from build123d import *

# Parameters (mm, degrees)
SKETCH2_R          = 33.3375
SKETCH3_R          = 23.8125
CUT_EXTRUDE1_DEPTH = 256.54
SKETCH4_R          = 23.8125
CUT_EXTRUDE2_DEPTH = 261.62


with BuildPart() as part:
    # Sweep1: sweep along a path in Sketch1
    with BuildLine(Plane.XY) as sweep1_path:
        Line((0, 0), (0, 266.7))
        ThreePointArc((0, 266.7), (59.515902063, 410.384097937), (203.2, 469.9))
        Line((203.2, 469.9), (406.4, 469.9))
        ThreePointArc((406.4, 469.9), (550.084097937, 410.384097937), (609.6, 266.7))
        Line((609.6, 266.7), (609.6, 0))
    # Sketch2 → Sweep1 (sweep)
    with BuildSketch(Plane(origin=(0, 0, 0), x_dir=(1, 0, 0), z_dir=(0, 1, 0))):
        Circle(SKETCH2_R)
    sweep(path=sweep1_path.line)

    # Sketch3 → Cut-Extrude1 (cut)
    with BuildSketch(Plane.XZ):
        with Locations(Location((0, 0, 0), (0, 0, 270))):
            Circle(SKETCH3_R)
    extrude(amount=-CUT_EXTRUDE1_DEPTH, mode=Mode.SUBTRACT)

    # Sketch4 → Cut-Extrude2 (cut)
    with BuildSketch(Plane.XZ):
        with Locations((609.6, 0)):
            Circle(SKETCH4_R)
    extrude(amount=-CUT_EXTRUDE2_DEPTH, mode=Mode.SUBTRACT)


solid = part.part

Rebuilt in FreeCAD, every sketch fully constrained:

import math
import FreeCAD as App
import Part
import Sketcher
Q = App.Units.Quantity

doc = App.newDocument("Part")
body = doc.addObject("PartDesign::Body", "Body")

# Sketch on XZ plane
sketch1 = doc.addObject("Sketcher::SketchObject", "Sketch")
body.addObject(sketch1)
sketch1.AttachmentSupport = (doc.XZ_Plane, [""])
sketch1.MapMode = "FlatFace"
sketch1.addGeometry(Part.Circle(App.Vector(0, 0, 0), App.Vector(0, 0, 1), 33.3375), False)
sketch1.addConstraint(Sketcher.Constraint("Coincident", 0, 3, -1, 1))
sketch1.addConstraint(Sketcher.Constraint("Diameter", 0, Q("2.625 in")))

# Sketch on XY plane
sketch2 = doc.addObject("Sketcher::SketchObject", "Sketch001")
body.addObject(sketch2)
sketch2.AttachmentSupport = (doc.XY_Plane, [""])
sketch2.MapMode = "FlatFace"
sketch2.addGeometry(Part.LineSegment(App.Vector(0, 0, 0), App.Vector(0, 266.7, 0)), False)
sketch2.addGeometry(Part.ArcOfCircle(Part.Circle(App.Vector(203.2, 266.7, 0), App.Vector(0, 0, 1), 203.2), math.radians(90), math.radians(180)), False)
sketch2.addGeometry(Part.LineSegment(App.Vector(203.2, 469.9, 0), App.Vector(406.4, 469.9, 0)), False)
sketch2.addGeometry(Part.ArcOfCircle(Part.Circle(App.Vector(406.4, 266.7, 0), App.Vector(0, 0, 1), 203.2), math.radians(0), math.radians(90)), False)
sketch2.addGeometry(Part.LineSegment(App.Vector(609.6, 266.7, 0), App.Vector(609.6, 0, 0)), False)
sketch2.addConstraint(Sketcher.Constraint("Tangent", 0, 2, 1, 2))
sketch2.addConstraint(Sketcher.Constraint("Tangent", 1, 1, 2, 1))
sketch2.addConstraint(Sketcher.Constraint("Tangent", 2, 2, 3, 2))
sketch2.addConstraint(Sketcher.Constraint("Tangent", 3, 1, 4, 1))
sketch2.addConstraint(Sketcher.Constraint("Vertical", 0))
sketch2.addConstraint(Sketcher.Constraint("Horizontal", 2))
sketch2.addConstraint(Sketcher.Constraint("Vertical", 4))
sketch2.addConstraint(Sketcher.Constraint("Coincident", 0, 1, -1, 1))
sketch2.addConstraint(Sketcher.Constraint("Equal", 1, 3))
sketch2.addConstraint(Sketcher.Constraint("PointOnObject", 4, 2, -1))
sketch2.addConstraint(Sketcher.Constraint("Radius", 1, Q("8 in")))
sketch2.addConstraint(Sketcher.Constraint("DistanceX", 2, 1, 2, 2, Q("8 in")))
sketch2.addConstraint(Sketcher.Constraint("DistanceY", 0, 1, 0, 2, Q("10.5 in")))
doc.recompute()

additivepipe = doc.addObject("PartDesign::AdditivePipe", "AdditivePipe")
body.addObject(additivepipe)
additivepipe.Profile = sketch1
additivepipe.Spine = (sketch2, ["Edge1", "Edge2", "Edge3", "Edge4", "Edge5"])

# Sketch on XZ plane
sketch3 = doc.addObject("Sketcher::SketchObject", "Sketch002")
body.addObject(sketch3)
sketch3.AttachmentSupport = (doc.XZ_Plane, [""])
sketch3.MapMode = "FlatFace"
sketch3.addGeometry(Part.Circle(App.Vector(0, 0, 0), App.Vector(0, 0, 1), 23.8125), False)
sketch3.addConstraint(Sketcher.Constraint("Coincident", 0, 3, -1, 1))
sketch3.addConstraint(Sketcher.Constraint("Diameter", 0, Q("1.875 in")))
pocket1 = doc.addObject("PartDesign::Pocket", "Pocket")
body.addObject(pocket1)
pocket1.Profile = sketch3
pocket1.Length = Q("10.1 in")

# Sketch on XZ plane
sketch4 = doc.addObject("Sketcher::SketchObject", "Sketch003")
body.addObject(sketch4)
sketch4.AttachmentSupport = (doc.XZ_Plane, [""])
sketch4.MapMode = "FlatFace"
sketch4.addGeometry(Part.Circle(App.Vector(609.6, 0, 0), App.Vector(0, 0, 1), 23.8125), False)
sketch4.addConstraint(Sketcher.Constraint("PointOnObject", 0, 3, -1))
sketch4.addConstraint(Sketcher.Constraint("Diameter", 0, Q("1.875 in")))
sketch4.addConstraint(Sketcher.Constraint("DistanceX", -1, 1, 0, 3, Q("24 in")))
pocket2 = doc.addObject("PartDesign::Pocket", "Pocket001")
body.addObject(pocket2)
pocket2.Profile = sketch4
pocket2.Length = Q("10.3 in")

doc.recompute()
